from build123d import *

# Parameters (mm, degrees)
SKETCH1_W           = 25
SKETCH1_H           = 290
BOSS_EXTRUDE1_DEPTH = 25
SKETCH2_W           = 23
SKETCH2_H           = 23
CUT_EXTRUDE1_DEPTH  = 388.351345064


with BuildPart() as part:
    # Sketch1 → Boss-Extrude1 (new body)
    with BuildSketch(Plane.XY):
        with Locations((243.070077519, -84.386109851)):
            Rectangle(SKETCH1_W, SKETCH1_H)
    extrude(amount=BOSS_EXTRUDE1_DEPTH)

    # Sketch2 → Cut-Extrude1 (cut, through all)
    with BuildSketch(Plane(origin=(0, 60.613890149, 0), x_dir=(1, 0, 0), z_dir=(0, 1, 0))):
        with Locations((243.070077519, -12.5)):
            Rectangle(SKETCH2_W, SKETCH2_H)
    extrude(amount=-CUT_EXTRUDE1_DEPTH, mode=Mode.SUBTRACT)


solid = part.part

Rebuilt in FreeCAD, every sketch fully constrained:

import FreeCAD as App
import Part
import Sketcher

V = App.Vector
Q = App.Units.Quantity

doc = App.newDocument("Part")
body = doc.addObject("PartDesign::Body", "Body")

# Sketch on XY plane
sketch1 = body.newObject("Sketcher::SketchObject", "Sketch")
sketch1.AttachmentSupport = (doc.getObject("XY_Plane"), [""])
sketch1.MapMode = "FlatFace"
sketch1.addGeometry(Part.LineSegment(V(231, 61, 0), V(231, -229, 0)), False)
sketch1.addGeometry(Part.LineSegment(V(231, -229, 0), V(256, -229, 0)), False)
sketch1.addGeometry(Part.LineSegment(V(256, -229, 0), V(256, 61, 0)), False)
sketch1.addGeometry(Part.LineSegment(V(256, 61, 0), V(231, 61, 0)), False)
sketch1.addConstraint(Sketcher.Constraint("Coincident", 0, 2, 1, 1))
sketch1.addConstraint(Sketcher.Constraint("Coincident", 1, 2, 2, 1))
sketch1.addConstraint(Sketcher.Constraint("Coincident", 2, 2, 3, 1))
sketch1.addConstraint(Sketcher.Constraint("Coincident", 3, 2, 0, 1))
sketch1.addConstraint(Sketcher.Constraint("Vertical", 0))
sketch1.addConstraint(Sketcher.Constraint("Horizontal", 1))
sketch1.addConstraint(Sketcher.Constraint("Vertical", 2))
sketch1.addConstraint(Sketcher.Constraint("Horizontal", 3))
sketch1.addConstraint(Sketcher.Constraint("DistanceX", 1, 1, 1, 2, Q("25 mm")))
sketch1.addConstraint(Sketcher.Constraint("DistanceY", 0, 2, 0, 1, Q("290 mm")))
sketch1.addConstraint(Sketcher.Constraint("DistanceY", 0, 2, -1, 1, Q("229.38611 mm")))
sketch1.addConstraint(Sketcher.Constraint("DistanceX", -1, 1, 0, 2, Q("230.570078 mm")))
pad1 = body.newObject("PartDesign::Pad", "Pad")
pad1.Profile = sketch1
pad1.Length = 25

# Sketch on XZ plane
sketch2 = body.newObject("Sketcher::SketchObject", "Sketch001")
sketch2.AttachmentSupport = (doc.getObject("XZ_Plane"), [""])
sketch2.MapMode = "FlatFace"
sketch2.AttachmentOffset = App.Placement(V(0, 0, -60.61389), App.Rotation())
sketch2.addGeometry(Part.LineSegment(V(232, 1, 0), V(232, 24, 0)), False)
sketch2.addGeometry(Part.LineSegment(V(232, 24, 0), V(255, 24, 0)), False)
sketch2.addGeometry(Part.LineSegment(V(255, 24, 0), V(255, 1, 0)), False)
sketch2.addGeometry(Part.LineSegment(V(255, 1, 0), V(232, 1, 0)), False)
sketch2.addConstraint(Sketcher.Constraint("Coincident", 0, 2, 1, 1))
sketch2.addConstraint(Sketcher.Constraint("Coincident", 1, 2, 2, 1))
sketch2.addConstraint(Sketcher.Constraint("Coincident", 2, 2, 3, 1))
sketch2.addConstraint(Sketcher.Constraint("Coincident", 3, 2, 0, 1))
sketch2.addConstraint(Sketcher.Constraint("Vertical", 0))
sketch2.addConstraint(Sketcher.Constraint("Horizontal", 1))
sketch2.addConstraint(Sketcher.Constraint("Vertical", 2))
sketch2.addConstraint(Sketcher.Constraint("Horizontal", 3))
sketch2.addConstraint(Sketcher.Constraint("Equal", 3, 0))
sketch2.addConstraint(Sketcher.Constraint("DistanceX", 1, 1, 1, 2, Q("23 mm")))
sketch2.addConstraint(Sketcher.Constraint("DistanceY", -1, 1, 0, 2, Q("24 mm")))
sketch2.addConstraint(Sketcher.Constraint("DistanceX", -1, 1, 0, 2, Q("231.570078 mm")))
pocket1 = body.newObject("PartDesign::Pocket", "Pocket")
pocket1.Profile = sketch2
pocket1.Type = "ThroughAll"
pocket1.Reversed = True

doc.recompute()
